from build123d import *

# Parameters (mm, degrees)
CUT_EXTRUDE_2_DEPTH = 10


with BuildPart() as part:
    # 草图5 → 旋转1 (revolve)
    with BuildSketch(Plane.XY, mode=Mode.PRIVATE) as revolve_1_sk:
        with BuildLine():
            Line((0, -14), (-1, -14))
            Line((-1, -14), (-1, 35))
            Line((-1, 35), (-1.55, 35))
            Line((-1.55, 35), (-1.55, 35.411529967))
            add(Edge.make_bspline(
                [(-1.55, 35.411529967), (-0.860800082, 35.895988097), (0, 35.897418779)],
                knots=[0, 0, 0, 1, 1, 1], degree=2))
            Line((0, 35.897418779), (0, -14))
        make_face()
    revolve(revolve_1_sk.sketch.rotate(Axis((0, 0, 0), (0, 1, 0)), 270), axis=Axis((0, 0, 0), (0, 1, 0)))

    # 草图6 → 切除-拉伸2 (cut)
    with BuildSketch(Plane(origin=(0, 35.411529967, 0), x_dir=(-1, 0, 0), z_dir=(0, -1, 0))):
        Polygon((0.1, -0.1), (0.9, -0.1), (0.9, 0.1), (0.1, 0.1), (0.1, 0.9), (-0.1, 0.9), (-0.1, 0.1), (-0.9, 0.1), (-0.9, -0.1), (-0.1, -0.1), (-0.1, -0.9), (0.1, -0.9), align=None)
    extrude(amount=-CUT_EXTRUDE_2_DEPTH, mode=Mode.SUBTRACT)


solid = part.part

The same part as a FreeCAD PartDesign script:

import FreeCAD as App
import Part
import Sketcher

V = App.Vector
Q = App.Units.Quantity


def add_polygon(sketch, points):
    """Adds a closed chain of lines whose ends are joined by coincident constraints."""
    first, n = sketch.GeometryCount, len(points)
    for a, b in zip(points, points[1:] + points[:1]):
        sketch.addGeometry(Part.LineSegment(App.Vector(*a, 0), App.Vector(*b, 0)), False)
    for i in range(n):
        sketch.addConstraint(Sketcher.Constraint("Coincident", first + i, 2, first + (i + 1) % n, 1))

doc = App.newDocument("Part")
body = doc.addObject("PartDesign::Body", "Body")

# Sketch on XY plane
sketch1 = body.newObject("Sketcher::SketchObject", "Sketch")
sketch1.AttachmentSupport = (doc.getObject("XY_Plane"), [""])
sketch1.MapMode = "FlatFace"
sketch1.addGeometry([
    Part.LineSegment(V(-1, -14, 0), V(0, -14, 0)),  # 0
    Part.LineSegment(V(0, -14, 0), V(0, 35.897419, 0)),  # 1
    Part.BSplineCurve([V(-1.55, 35.41153, 0), V(-0.8608, 35.895988, 0), V(0, 35.897419, 0)], [3, 3], [0, 1], False, 2, [1, 1, 1], False),  # 2
    Part.LineSegment(V(-1.55, 35.41153, 0), V(-1.55, 35, 0)),  # 3
    Part.LineSegment(V(-1.55, 35, 0), V(-1, 35, 0)),  # 4
    Part.LineSegment(V(-1, 35, 0), V(-1, -14, 0)),  # 5
], False)
sketch1.addConstraint([
    Sketcher.Constraint("Block", 2),
    Sketcher.Constraint("Coincident", 0, 2, 1, 1),
    Sketcher.Constraint("Coincident", 1, 2, 2, 2),
    Sketcher.Constraint("Coincident", 2, 1, 3, 1),
    Sketcher.Constraint("Coincident", 3, 2, 4, 1),
    Sketcher.Constraint("Coincident", 4, 2, 5, 1),
    Sketcher.Constraint("Coincident", 5, 2, 0, 1),
    Sketcher.Constraint("Horizontal", 0),
    Sketcher.Constraint("Vertical", 1),
    Sketcher.Constraint("Vertical", 3),
    Sketcher.Constraint("Horizontal", 4),
    Sketcher.Constraint("Vertical", 5),
    Sketcher.Constraint("DistanceX", 0, 1, 0, 2, Q("1 mm")),
    Sketcher.Constraint("DistanceY", 5, 2, 5, 1, Q("49 mm")),
    Sketcher.Constraint("DistanceY", 0, 2, -1, 1, Q("14 mm")),
])
revolution = body.newObject("PartDesign::Revolution", "Revolution")
revolution.Profile = sketch1
revolution.ReferenceAxis = (sketch1, ["V_Axis"])
revolution.Angle = 360

# Sketch on XZ plane
sketch2 = body.newObject("Sketcher::SketchObject", "Sketch001")
sketch2.AttachmentSupport = (doc.getObject("XZ_Plane"), [""])
sketch2.MapMode = "FlatFace"
sketch2.AttachmentOffset = App.Placement(V(0, 0, -35.41153), App.Rotation())
add_polygon(sketch2, [(-0.1, 0.1), (-0.9, 0.1), (-0.9, -0.1), (-0.1, -0.1), (-0.1, -0.9), (0.1, -0.9), (0.1, -0.1), (0.9, -0.1), (0.9, 0.1), (0.1, 0.1), (0.1, 0.9), (-0.1, 0.9)])  # lines 0-11
sketch2.addConstraint([
    Sketcher.Constraint("Horizontal", 0),
    Sketcher.Constraint("Vertical", 1),
    Sketcher.Constraint("Horizontal", 2),
    Sketcher.Constraint("Vertical", 3),
    Sketcher.Constraint("Horizontal", 4),
    Sketcher.Constraint("Vertical", 5),
    Sketcher.Constraint("Horizontal", 6),
    Sketcher.Constraint("Vertical", 7),
    Sketcher.Constraint("Horizontal", 8),
    Sketcher.Constraint("Vertical", 9),
    Sketcher.Constraint("Horizontal", 10),
    Sketcher.Constraint("Vertical", 11),
    Sketcher.Constraint("Symmetric", 0, 2, 6, 2, -1, 1),
    Sketcher.Constraint("Symmetric", 2, 2, 8, 2, -1, 1),
    Sketcher.Constraint("Symmetric", 4, 2, 10, 2, -1, 1),
    Sketcher.Constraint("Symmetric", 2, 2, 5, 2, -2),
    Sketcher.Constraint("Equal", 10, 1),
    Sketcher.Constraint("Equal", 8, 3),
    Sketcher.Constraint("DistanceX", 0, 2, 0, 1, Q("0.8 mm")),
    Sketcher.Constraint("DistanceX", 4, 1, 4, 2, Q("0.2 mm")),
])
pocket1 = body.newObject("PartDesign::Pocket", "Pocket")
pocket1.Profile = sketch2
pocket1.Length = 10

doc.recompute()
